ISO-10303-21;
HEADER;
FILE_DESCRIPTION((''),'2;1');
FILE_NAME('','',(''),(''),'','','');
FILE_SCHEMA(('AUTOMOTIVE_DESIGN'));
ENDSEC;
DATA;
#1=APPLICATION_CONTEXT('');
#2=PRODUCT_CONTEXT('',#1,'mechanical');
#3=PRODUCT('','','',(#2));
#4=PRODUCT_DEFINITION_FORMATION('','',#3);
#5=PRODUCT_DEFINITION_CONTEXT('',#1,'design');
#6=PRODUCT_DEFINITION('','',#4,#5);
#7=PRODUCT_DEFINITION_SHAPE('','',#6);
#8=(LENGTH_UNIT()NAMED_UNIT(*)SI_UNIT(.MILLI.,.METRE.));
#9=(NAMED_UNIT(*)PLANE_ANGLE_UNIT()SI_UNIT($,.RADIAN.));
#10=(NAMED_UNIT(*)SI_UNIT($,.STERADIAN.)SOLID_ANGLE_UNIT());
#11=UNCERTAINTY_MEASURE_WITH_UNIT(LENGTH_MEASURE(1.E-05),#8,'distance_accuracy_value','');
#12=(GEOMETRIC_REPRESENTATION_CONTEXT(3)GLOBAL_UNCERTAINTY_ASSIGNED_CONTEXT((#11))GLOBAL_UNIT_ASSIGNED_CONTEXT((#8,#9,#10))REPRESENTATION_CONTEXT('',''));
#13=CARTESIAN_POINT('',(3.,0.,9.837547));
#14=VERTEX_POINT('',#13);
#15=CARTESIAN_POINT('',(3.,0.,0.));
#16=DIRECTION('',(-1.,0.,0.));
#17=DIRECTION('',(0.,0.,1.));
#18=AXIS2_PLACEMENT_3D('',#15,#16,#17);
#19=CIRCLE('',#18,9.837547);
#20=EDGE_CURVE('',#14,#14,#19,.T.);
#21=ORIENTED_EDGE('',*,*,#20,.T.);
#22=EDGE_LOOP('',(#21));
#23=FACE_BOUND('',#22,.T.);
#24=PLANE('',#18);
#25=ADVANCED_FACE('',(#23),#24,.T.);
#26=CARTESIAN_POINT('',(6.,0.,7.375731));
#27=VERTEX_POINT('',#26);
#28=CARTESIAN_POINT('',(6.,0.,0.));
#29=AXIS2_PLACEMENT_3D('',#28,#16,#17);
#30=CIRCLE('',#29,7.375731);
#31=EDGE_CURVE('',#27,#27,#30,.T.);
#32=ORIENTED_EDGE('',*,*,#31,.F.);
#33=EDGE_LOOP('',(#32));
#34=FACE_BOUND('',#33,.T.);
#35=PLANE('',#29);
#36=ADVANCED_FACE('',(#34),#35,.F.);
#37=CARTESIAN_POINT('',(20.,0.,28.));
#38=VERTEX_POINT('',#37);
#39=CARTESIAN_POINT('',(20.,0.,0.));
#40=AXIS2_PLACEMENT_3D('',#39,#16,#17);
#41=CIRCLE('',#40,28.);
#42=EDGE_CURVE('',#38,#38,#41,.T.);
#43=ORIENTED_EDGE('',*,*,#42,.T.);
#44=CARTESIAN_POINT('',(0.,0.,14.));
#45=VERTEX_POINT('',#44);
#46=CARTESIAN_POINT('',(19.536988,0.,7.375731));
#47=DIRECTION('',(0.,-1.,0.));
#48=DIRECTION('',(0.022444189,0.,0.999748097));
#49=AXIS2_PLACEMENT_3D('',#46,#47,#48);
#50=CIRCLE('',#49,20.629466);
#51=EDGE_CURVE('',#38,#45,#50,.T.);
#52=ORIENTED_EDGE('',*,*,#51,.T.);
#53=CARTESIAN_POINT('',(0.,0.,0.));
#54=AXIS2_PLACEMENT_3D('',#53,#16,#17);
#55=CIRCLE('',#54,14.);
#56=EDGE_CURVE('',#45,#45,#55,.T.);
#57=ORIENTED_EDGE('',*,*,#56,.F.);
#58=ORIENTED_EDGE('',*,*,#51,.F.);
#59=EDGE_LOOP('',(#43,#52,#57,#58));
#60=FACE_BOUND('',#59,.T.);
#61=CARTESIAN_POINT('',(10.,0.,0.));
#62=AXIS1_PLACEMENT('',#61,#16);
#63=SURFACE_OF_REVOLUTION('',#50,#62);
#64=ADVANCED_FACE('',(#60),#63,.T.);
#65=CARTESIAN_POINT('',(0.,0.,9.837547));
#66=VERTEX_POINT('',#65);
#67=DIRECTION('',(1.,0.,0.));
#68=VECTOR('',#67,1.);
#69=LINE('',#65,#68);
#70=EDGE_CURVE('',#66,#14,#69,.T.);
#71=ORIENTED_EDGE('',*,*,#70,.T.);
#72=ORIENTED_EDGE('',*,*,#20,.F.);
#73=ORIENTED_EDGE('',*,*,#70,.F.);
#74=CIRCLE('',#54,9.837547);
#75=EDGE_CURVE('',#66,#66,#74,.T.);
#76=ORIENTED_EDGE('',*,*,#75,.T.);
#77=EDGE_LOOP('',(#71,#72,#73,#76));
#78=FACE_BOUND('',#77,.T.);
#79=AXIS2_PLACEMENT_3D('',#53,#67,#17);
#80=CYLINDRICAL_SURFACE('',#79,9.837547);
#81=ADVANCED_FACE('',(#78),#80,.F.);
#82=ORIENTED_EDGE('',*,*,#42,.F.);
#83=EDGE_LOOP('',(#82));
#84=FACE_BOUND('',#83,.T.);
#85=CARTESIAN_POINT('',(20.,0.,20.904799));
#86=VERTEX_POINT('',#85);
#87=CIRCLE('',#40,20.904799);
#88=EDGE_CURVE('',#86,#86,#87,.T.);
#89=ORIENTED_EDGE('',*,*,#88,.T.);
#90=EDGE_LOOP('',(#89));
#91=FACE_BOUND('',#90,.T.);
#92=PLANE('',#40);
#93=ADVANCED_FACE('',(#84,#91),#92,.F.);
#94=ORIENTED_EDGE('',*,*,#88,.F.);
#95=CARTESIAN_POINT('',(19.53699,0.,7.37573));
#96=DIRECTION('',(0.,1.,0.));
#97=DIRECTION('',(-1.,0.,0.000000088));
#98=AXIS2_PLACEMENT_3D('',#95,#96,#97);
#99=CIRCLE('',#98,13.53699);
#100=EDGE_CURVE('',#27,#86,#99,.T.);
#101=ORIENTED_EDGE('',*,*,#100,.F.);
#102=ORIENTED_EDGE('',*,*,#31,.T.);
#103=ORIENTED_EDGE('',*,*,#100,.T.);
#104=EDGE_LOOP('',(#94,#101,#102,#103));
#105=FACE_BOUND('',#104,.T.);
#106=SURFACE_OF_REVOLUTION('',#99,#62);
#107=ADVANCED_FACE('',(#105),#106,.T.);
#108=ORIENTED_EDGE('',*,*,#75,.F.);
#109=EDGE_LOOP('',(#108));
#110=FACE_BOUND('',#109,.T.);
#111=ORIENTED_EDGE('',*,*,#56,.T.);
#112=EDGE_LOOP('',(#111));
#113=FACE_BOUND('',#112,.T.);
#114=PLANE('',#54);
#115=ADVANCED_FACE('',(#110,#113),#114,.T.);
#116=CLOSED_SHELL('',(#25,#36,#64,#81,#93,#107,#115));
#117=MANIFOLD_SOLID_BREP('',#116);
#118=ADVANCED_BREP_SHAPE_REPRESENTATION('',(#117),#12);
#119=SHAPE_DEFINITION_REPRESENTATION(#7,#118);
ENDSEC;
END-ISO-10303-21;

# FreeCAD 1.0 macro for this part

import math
import FreeCAD as App
import Part
import Sketcher
Q = App.Units.Quantity

doc = App.newDocument("Part")
body = doc.addObject("PartDesign::Body", "Body")

sketch1 = body.newObject("Sketcher::SketchObject", "Sketch")
sketch1.AttachmentSupport = (doc.getObject("XZ_Plane"), [""])
sketch1.MapMode = "FlatFace"
sketch1.addGeometry([
    Part.LineSegment(App.Vector(3, 9.837547, 0), App.Vector(3, 0, 0)),
    Part.LineSegment(App.Vector(3, 0, 0), App.Vector(6, 0, 0)),
    Part.LineSegment(App.Vector(6, 0, 0), App.Vector(6, 7.375731, 0)),
    Part.ArcOfCircle(Part.Circle(App.Vector(19.53699, 7.37573, 0), App.Vector(0, 0, 1), 13.53699), math.radians(88.039911), math.radians(179.999995)),
    Part.LineSegment(App.Vector(20, 20.904799, 0), App.Vector(20, 28, 0)),
    Part.ArcOfCircle(Part.Circle(App.Vector(19.536988, 7.375731, 0), App.Vector(0, 0, 1), 20.629466), math.radians(88.713935), math.radians(161.270106)),
    Part.LineSegment(App.Vector(0, 14, 0), App.Vector(0, 9.837547, 0)),
    Part.LineSegment(App.Vector(0, 9.837547, 0), App.Vector(3, 9.837547, 0)),
], False)
sketch1.addConstraint([
    Sketcher.Constraint("Coincident", 0, 2, 1, 1),
    Sketcher.Constraint("Coincident", 1, 2, 2, 1),
    Sketcher.Constraint("Tangent", 2, 2, 3, 2),
    Sketcher.Constraint("Coincident", 3, 1, 4, 1),
    Sketcher.Constraint("Coincident", 4, 2, 5, 1),
    Sketcher.Constraint("Coincident", 5, 2, 6, 1),
    Sketcher.Constraint("Coincident", 6, 2, 7, 1),
    Sketcher.Constraint("Coincident", 7, 2, 0, 1),
    Sketcher.Constraint("Vertical", 0),
    Sketcher.Constraint("Horizontal", 1),
    Sketcher.Constraint("Vertical", 2),
    Sketcher.Constraint("Vertical", 4),
    Sketcher.Constraint("Vertical", 6),
    Sketcher.Constraint("Horizontal", 7),
    Sketcher.Constraint("Coincident", 5, 3, 3, 3),
    Sketcher.Constraint("PointOnObject", 0, 2, -1),
    Sketcher.Constraint("PointOnObject", 5, 2, -2),
    Sketcher.Constraint("Equal", 1, 7),
    Sketcher.Constraint("DistanceX", 1, 1, 1, 2, Q("3 mm")),
    Sketcher.Constraint("DistanceX", -1, 1, 3, 1, Q("20 mm")),
    Sketcher.Constraint("DistanceY", -1, 1, 4, 2, Q("28 mm")),
    Sketcher.Constraint("DistanceY", -1, 1, 5, 2, Q("14 mm")),
    Sketcher.Constraint("Radius", 3, Q("13.53699 mm")),
    Sketcher.Constraint("DistanceY", 0, 2, 0, 1, Q("9.837547 mm")),
])
revolution = body.newObject("PartDesign::Revolution", "Revolution")
revolution.Profile = sketch1
revolution.ReferenceAxis = (sketch1, ["H_Axis"])
revolution.Angle = 360

doc.recompute()
